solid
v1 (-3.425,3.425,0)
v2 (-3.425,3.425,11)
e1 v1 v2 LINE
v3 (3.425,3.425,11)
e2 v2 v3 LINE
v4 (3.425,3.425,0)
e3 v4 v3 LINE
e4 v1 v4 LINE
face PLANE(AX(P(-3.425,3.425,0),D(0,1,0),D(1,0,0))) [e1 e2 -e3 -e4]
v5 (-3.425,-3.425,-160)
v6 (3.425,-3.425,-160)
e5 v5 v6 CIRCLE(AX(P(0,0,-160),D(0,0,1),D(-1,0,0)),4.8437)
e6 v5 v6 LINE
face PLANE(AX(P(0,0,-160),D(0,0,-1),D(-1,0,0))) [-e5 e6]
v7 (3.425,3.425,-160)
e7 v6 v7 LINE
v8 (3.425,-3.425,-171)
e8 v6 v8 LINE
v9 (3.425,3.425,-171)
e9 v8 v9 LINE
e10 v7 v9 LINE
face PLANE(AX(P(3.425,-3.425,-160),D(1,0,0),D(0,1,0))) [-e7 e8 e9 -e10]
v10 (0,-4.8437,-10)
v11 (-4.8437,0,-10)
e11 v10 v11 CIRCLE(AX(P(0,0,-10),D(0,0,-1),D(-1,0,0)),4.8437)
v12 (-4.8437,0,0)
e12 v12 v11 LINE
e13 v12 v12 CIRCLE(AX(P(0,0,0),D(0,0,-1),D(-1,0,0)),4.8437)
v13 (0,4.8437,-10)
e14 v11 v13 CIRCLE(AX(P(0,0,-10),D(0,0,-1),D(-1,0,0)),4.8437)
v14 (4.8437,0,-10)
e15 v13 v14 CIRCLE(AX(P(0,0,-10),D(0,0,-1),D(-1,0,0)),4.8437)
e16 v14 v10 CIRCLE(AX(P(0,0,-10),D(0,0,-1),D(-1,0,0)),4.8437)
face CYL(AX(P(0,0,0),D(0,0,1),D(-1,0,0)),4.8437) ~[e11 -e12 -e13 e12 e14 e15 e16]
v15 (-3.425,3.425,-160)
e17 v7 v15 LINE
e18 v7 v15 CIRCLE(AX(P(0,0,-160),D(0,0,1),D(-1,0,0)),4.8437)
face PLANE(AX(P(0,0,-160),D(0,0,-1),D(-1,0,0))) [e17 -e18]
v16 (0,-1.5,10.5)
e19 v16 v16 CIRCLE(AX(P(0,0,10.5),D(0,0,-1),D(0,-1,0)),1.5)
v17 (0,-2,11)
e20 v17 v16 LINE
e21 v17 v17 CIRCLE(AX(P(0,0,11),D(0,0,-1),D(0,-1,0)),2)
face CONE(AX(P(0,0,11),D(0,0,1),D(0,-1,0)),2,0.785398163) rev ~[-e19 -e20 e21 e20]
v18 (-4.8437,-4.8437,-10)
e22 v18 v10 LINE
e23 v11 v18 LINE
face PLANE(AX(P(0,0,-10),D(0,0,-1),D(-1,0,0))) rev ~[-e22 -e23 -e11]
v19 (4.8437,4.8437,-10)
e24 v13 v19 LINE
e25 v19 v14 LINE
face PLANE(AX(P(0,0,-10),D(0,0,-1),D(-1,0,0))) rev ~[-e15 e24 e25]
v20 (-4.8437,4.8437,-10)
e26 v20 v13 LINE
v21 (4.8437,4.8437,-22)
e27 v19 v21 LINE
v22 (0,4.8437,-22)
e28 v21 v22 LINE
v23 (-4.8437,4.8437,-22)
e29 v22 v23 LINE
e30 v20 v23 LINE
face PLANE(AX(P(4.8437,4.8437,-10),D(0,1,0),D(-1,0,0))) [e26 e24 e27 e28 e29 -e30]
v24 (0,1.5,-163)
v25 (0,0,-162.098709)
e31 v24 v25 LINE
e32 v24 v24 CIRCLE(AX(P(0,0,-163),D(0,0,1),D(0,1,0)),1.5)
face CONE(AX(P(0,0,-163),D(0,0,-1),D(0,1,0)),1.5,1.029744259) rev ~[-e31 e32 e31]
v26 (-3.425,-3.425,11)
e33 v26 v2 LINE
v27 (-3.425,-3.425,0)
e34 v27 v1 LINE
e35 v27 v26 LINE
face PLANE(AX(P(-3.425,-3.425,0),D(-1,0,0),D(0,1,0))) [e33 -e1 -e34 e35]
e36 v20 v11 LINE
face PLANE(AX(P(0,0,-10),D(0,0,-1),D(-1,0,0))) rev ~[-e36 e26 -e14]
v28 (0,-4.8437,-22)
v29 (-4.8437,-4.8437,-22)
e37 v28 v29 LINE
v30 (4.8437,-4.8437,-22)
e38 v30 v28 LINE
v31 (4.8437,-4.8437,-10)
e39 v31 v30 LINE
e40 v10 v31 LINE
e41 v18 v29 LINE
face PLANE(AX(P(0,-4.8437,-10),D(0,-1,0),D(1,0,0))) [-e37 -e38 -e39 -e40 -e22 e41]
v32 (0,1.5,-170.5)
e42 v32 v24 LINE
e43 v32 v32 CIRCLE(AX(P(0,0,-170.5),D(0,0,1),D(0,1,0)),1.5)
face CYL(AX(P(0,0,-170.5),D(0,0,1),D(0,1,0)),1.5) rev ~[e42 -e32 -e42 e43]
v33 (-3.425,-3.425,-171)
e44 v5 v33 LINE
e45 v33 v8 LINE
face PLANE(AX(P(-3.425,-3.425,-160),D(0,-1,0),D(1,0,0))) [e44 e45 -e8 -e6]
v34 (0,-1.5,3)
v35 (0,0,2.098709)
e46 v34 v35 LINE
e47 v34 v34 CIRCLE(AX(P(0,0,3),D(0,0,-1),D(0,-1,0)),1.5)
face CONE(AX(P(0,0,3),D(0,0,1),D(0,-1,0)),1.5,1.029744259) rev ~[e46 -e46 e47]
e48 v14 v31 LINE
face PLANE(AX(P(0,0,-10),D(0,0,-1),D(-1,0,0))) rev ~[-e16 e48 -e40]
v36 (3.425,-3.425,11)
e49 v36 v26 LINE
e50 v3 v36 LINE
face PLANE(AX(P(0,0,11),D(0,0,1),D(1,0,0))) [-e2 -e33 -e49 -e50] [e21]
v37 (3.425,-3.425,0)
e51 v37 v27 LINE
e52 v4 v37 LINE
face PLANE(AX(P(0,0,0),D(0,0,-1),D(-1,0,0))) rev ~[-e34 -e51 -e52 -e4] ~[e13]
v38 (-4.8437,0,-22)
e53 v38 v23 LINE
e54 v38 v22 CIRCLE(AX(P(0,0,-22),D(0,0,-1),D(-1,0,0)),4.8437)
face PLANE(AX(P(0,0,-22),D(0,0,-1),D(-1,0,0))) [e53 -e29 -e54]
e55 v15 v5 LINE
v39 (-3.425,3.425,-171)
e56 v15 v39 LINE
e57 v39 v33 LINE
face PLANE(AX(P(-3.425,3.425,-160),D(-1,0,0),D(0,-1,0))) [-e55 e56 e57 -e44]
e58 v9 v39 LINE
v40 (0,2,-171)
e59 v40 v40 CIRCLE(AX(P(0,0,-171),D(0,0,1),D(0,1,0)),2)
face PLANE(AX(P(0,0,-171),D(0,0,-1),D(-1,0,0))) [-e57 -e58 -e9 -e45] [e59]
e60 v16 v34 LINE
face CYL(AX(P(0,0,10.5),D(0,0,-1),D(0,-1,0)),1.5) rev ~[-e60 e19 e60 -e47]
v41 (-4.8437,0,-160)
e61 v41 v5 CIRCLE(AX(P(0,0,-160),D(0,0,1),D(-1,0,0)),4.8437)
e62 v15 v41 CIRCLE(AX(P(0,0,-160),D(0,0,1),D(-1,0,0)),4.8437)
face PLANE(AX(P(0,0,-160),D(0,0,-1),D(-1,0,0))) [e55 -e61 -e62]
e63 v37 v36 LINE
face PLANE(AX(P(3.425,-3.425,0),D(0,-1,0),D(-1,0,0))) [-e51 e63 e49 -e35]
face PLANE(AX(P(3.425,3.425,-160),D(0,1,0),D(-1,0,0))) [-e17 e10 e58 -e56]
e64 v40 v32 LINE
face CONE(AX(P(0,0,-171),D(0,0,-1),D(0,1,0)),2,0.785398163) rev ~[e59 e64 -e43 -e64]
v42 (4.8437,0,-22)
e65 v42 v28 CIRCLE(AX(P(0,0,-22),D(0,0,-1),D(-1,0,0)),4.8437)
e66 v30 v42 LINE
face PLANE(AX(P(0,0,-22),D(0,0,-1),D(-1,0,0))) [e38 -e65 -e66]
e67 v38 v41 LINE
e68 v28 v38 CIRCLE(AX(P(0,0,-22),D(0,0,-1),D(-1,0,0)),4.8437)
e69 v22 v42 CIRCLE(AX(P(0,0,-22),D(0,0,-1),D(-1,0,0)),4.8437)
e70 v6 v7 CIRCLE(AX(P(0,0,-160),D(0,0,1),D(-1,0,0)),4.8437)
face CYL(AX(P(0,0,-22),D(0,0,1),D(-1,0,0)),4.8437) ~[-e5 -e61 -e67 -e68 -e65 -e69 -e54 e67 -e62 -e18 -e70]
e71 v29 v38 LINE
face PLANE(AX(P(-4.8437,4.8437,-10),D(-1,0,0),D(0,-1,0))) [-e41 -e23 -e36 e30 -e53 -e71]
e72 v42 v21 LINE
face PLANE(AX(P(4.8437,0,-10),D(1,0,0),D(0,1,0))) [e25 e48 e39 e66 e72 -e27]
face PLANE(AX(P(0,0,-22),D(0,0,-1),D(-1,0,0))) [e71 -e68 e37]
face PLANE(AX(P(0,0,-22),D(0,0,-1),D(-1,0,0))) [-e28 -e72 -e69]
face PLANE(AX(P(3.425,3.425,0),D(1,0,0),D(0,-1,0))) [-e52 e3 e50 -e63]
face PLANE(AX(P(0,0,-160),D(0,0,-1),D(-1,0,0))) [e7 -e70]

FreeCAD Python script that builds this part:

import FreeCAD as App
import Part
import Sketcher
Q = App.Units.Quantity

doc = App.newDocument("Part")
body = doc.addObject("PartDesign::Body", "Body")

# Sketch on XY plane
sketch1 = body.newObject("Sketcher::SketchObject", "Sketch")
sketch1.AttachmentSupport = (doc.getObject("XY_Plane"), [""])
sketch1.MapMode = "FlatFace"
sketch1.addGeometry(Part.LineSegment(App.Vector(3, 3, 0), App.Vector(-3, 3, 0)), False)
sketch1.addGeometry(Part.LineSegment(App.Vector(-3, 3, 0), App.Vector(-3, -3, 0)), False)
sketch1.addGeometry(Part.LineSegment(App.Vector(-3, -3, 0), App.Vector(3, -3, 0)), False)
sketch1.addGeometry(Part.LineSegment(App.Vector(3, -3, 0), App.Vector(3, 3, 0)), False)
sketch1.addConstraint(Sketcher.Constraint("Coincident", 0, 2, 1, 1))
sketch1.addConstraint(Sketcher.Constraint("Coincident", 1, 2, 2, 1))
sketch1.addConstraint(Sketcher.Constraint("Coincident", 2, 2, 3, 1))
sketch1.addConstraint(Sketcher.Constraint("Coincident", 3, 2, 0, 1))
sketch1.addConstraint(Sketcher.Constraint("Horizontal", 0))
sketch1.addConstraint(Sketcher.Constraint("Vertical", 1))
sketch1.addConstraint(Sketcher.Constraint("Horizontal", 2))
sketch1.addConstraint(Sketcher.Constraint("Vertical", 3))
sketch1.addConstraint(Sketcher.Constraint("Symmetric", 0, 2, 2, 2, -1, 1))
sketch1.addConstraint(Sketcher.Constraint("Equal", 2, 1))
sketch1.addConstraint(Sketcher.Constraint("DistanceX", 0, 2, 0, 1, Q("6.85 mm")))
pad1 = body.newObject("PartDesign::Pad", "Pad")
pad1.Profile = sketch1
pad1.Length = 11

# Sketch on XY plane
sketch2 = body.newObject("Sketcher::SketchObject", "Sketch001")
sketch2.AttachmentSupport = (doc.getObject("XY_Plane"), [""])
sketch2.MapMode = "FlatFace"
sketch2.addGeometry(Part.Circle(App.Vector(0, 0, 0), App.Vector(0, 0, 1), 4.8), False)
sketch2.addConstraint(Sketcher.Constraint("Coincident", 0, 3, -1, 1))
sketch2.addConstraint(Sketcher.Constraint("Diameter", 0, Q("9.6874 mm")))
pad2 = body.newObject("PartDesign::Pad", "Pad001")
pad2.Profile = sketch2
pad2.Length = 10
pad2.Reversed = True

# Sketch on XY plane
sketch3 = body.newObject("Sketcher::SketchObject", "Sketch002")
sketch3.AttachmentSupport = (doc.getObject("XY_Plane"), [""])
sketch3.MapMode = "FlatFace"
sketch3.AttachmentOffset = App.Placement(App.Vector(0, 0, -10), App.Rotation())
sketch3.addGeometry(Part.LineSegment(App.Vector(5, 5, 0), App.Vector(5, -5, 0)), False)
sketch3.addGeometry(Part.LineSegment(App.Vector(5, -5, 0), App.Vector(-5, -5, 0)), False)
sketch3.addGeometry(Part.LineSegment(App.Vector(-5, -5, 0), App.Vector(-5, 5, 0)), False)
sketch3.addGeometry(Part.LineSegment(App.Vector(-5, 5, 0), App.Vector(5, 5, 0)), False)
sketch3.addConstraint(Sketcher.Constraint("Coincident", 0, 2, 1, 1))
sketch3.addConstraint(Sketcher.Constraint("Coincident", 1, 2, 2, 1))
sketch3.addConstraint(Sketcher.Constraint("Coincident", 2, 2, 3, 1))
sketch3.addConstraint(Sketcher.Constraint("Coincident", 3, 2, 0, 1))
sketch3.addConstraint(Sketcher.Constraint("Vertical", 0))
sketch3.addConstraint(Sketcher.Constraint("Horizontal", 1))
sketch3.addConstraint(Sketcher.Constraint("Vertical", 2))
sketch3.addConstraint(Sketcher.Constraint("Horizontal", 3))
sketch3.addConstraint(Sketcher.Constraint("Symmetric", 0, 2, 2, 2, -1, 1))
sketch3.addConstraint(Sketcher.Constraint("Equal", 3, 0))
sketch3.addConstraint(Sketcher.Constraint("DistanceX", 1, 2, 1, 1, Q("9.6874 mm")))
pad3 = body.newObject("PartDesign::Pad", "Pad002")
pad3.Profile = sketch3
pad3.Length = 12
pad3.Reversed = True

# Sketch on XY plane
sketch4 = body.newObject("Sketcher::SketchObject", "Sketch003")
sketch4.AttachmentSupport = (doc.getObject("XY_Plane"), [""])
sketch4.MapMode = "FlatFace"
sketch4.AttachmentOffset = App.Placement(App.Vector(0, 0, -22), App.Rotation())
sketch4.addGeometry(Part.Circle(App.Vector(0, 0, 0), App.Vector(0, 0, 1), 4.8), False)
sketch4.addConstraint(Sketcher.Constraint("Coincident", 0, 3, -1, 1))
sketch4.addConstraint(Sketcher.Constraint("Diameter", 0, Q("9.6874 mm")))
pad4 = body.newObject("PartDesign::Pad", "Pad003")
pad4.Profile = sketch4
pad4.Length = 138
pad4.Reversed = True

# Sketch on XY plane
sketch5 = body.newObject("Sketcher::SketchObject", "Sketch004")
sketch5.AttachmentSupport = (doc.getObject("XY_Plane"), [""])
sketch5.MapMode = "FlatFace"
sketch5.AttachmentOffset = App.Placement(App.Vector(0, 0, -160), App.Rotation())
sketch5.addGeometry(Part.LineSegment(App.Vector(-3, 3, 0), App.Vector(3, 3, 0)), False)
sketch5.addGeometry(Part.LineSegment(App.Vector(3, 3, 0), App.Vector(3, -3, 0)), False)
sketch5.addGeometry(Part.LineSegment(App.Vector(3, -3, 0), App.Vector(-3, -3, 0)), False)
sketch5.addGeometry(Part.LineSegment(App.Vector(-3, -3, 0), App.Vector(-3, 3, 0)), False)
sketch5.addConstraint(Sketcher.Constraint("Coincident", 0, 2, 1, 1))
sketch5.addConstraint(Sketcher.Constraint("Coincident", 1, 2, 2, 1))
sketch5.addConstraint(Sketcher.Constraint("Coincident", 2, 2, 3, 1))
sketch5.addConstraint(Sketcher.Constraint("Coincident", 3, 2, 0, 1))
sketch5.addConstraint(Sketcher.Constraint("Horizontal", 0))
sketch5.addConstraint(Sketcher.Constraint("Vertical", 1))
sketch5.addConstraint(Sketcher.Constraint("Horizontal", 2))
sketch5.addConstraint(Sketcher.Constraint("Vertical", 3))
sketch5.addConstraint(Sketcher.Constraint("Symmetric", 0, 2, 2, 2, -1, 1))
sketch5.addConstraint(Sketcher.Constraint("Equal", 2, 1))
sketch5.addConstraint(Sketcher.Constraint("DistanceX", 0, 1, 0, 2, Q("6.85 mm")))
pad5 = body.newObject("PartDesign::Pad", "Pad004")
pad5.Profile = sketch5
pad5.Length = 11
pad5.Reversed = True

# Sketch on XY plane
sketch6 = body.newObject("Sketcher::SketchObject", "Sketch005")
sketch6.AttachmentSupport = (doc.getObject("XY_Plane"), [""])
sketch6.MapMode = "FlatFace"
sketch6.AttachmentOffset = App.Placement(App.Vector(0, 0, 11), App.Rotation())
sketch6.addGeometry(Part.Circle(App.Vector(0, 0, 0), App.Vector(0, 0, 1), 1.5), False)
sketch6.addConstraint(Sketcher.Constraint("Coincident", 0, 3, -1, 1))
sketch6.addConstraint(Sketcher.Constraint("Diameter", 0, Q("3 mm")))
doc.recompute()
hole = body.newObject("PartDesign::Hole", "Hole")
hole.Profile = sketch6
hole.ThreadType = "None"
hole.Diameter = 3
hole.DepthType = "Dimension"
hole.Depth = 8
hole.DrillPoint = "Angled"
hole.DrillPointAngle = 118
hole.HoleCutType = "Countersink"
hole.HoleCutDiameter = 4
hole.HoleCutCountersinkAngle = 90

# Sketch on XY plane
sketch7 = body.newObject("Sketcher::SketchObject", "Sketch006")
sketch7.AttachmentSupport = (doc.getObject("XY_Plane"), [""])
sketch7.MapMode = "FlatFace"
sketch7.AttachmentOffset = App.Placement(App.Vector(0, 0, -171), App.Rotation())
sketch7.addGeometry(Part.Circle(App.Vector(0, 0, 0), App.Vector(0, 0, 1), 1.5), False)
sketch7.addConstraint(Sketcher.Constraint("Coincident", 0, 3, -1, 1))
sketch7.addConstraint(Sketcher.Constraint("Diameter", 0, Q("3 mm")))
doc.recompute()
hole2 = body.newObject("PartDesign::Hole", "Hole001")
hole2.Profile = sketch7
hole2.ThreadType = "None"
hole2.Diameter = 3
hole2.DepthType = "Dimension"
hole2.Depth = 8
hole2.DrillPoint = "Angled"
hole2.DrillPointAngle = 118
hole2.HoleCutType = "Countersink"
hole2.HoleCutDiameter = 4
hole2.HoleCutCountersinkAngle = 90
hole2.Reversed = True

doc.recompute()
